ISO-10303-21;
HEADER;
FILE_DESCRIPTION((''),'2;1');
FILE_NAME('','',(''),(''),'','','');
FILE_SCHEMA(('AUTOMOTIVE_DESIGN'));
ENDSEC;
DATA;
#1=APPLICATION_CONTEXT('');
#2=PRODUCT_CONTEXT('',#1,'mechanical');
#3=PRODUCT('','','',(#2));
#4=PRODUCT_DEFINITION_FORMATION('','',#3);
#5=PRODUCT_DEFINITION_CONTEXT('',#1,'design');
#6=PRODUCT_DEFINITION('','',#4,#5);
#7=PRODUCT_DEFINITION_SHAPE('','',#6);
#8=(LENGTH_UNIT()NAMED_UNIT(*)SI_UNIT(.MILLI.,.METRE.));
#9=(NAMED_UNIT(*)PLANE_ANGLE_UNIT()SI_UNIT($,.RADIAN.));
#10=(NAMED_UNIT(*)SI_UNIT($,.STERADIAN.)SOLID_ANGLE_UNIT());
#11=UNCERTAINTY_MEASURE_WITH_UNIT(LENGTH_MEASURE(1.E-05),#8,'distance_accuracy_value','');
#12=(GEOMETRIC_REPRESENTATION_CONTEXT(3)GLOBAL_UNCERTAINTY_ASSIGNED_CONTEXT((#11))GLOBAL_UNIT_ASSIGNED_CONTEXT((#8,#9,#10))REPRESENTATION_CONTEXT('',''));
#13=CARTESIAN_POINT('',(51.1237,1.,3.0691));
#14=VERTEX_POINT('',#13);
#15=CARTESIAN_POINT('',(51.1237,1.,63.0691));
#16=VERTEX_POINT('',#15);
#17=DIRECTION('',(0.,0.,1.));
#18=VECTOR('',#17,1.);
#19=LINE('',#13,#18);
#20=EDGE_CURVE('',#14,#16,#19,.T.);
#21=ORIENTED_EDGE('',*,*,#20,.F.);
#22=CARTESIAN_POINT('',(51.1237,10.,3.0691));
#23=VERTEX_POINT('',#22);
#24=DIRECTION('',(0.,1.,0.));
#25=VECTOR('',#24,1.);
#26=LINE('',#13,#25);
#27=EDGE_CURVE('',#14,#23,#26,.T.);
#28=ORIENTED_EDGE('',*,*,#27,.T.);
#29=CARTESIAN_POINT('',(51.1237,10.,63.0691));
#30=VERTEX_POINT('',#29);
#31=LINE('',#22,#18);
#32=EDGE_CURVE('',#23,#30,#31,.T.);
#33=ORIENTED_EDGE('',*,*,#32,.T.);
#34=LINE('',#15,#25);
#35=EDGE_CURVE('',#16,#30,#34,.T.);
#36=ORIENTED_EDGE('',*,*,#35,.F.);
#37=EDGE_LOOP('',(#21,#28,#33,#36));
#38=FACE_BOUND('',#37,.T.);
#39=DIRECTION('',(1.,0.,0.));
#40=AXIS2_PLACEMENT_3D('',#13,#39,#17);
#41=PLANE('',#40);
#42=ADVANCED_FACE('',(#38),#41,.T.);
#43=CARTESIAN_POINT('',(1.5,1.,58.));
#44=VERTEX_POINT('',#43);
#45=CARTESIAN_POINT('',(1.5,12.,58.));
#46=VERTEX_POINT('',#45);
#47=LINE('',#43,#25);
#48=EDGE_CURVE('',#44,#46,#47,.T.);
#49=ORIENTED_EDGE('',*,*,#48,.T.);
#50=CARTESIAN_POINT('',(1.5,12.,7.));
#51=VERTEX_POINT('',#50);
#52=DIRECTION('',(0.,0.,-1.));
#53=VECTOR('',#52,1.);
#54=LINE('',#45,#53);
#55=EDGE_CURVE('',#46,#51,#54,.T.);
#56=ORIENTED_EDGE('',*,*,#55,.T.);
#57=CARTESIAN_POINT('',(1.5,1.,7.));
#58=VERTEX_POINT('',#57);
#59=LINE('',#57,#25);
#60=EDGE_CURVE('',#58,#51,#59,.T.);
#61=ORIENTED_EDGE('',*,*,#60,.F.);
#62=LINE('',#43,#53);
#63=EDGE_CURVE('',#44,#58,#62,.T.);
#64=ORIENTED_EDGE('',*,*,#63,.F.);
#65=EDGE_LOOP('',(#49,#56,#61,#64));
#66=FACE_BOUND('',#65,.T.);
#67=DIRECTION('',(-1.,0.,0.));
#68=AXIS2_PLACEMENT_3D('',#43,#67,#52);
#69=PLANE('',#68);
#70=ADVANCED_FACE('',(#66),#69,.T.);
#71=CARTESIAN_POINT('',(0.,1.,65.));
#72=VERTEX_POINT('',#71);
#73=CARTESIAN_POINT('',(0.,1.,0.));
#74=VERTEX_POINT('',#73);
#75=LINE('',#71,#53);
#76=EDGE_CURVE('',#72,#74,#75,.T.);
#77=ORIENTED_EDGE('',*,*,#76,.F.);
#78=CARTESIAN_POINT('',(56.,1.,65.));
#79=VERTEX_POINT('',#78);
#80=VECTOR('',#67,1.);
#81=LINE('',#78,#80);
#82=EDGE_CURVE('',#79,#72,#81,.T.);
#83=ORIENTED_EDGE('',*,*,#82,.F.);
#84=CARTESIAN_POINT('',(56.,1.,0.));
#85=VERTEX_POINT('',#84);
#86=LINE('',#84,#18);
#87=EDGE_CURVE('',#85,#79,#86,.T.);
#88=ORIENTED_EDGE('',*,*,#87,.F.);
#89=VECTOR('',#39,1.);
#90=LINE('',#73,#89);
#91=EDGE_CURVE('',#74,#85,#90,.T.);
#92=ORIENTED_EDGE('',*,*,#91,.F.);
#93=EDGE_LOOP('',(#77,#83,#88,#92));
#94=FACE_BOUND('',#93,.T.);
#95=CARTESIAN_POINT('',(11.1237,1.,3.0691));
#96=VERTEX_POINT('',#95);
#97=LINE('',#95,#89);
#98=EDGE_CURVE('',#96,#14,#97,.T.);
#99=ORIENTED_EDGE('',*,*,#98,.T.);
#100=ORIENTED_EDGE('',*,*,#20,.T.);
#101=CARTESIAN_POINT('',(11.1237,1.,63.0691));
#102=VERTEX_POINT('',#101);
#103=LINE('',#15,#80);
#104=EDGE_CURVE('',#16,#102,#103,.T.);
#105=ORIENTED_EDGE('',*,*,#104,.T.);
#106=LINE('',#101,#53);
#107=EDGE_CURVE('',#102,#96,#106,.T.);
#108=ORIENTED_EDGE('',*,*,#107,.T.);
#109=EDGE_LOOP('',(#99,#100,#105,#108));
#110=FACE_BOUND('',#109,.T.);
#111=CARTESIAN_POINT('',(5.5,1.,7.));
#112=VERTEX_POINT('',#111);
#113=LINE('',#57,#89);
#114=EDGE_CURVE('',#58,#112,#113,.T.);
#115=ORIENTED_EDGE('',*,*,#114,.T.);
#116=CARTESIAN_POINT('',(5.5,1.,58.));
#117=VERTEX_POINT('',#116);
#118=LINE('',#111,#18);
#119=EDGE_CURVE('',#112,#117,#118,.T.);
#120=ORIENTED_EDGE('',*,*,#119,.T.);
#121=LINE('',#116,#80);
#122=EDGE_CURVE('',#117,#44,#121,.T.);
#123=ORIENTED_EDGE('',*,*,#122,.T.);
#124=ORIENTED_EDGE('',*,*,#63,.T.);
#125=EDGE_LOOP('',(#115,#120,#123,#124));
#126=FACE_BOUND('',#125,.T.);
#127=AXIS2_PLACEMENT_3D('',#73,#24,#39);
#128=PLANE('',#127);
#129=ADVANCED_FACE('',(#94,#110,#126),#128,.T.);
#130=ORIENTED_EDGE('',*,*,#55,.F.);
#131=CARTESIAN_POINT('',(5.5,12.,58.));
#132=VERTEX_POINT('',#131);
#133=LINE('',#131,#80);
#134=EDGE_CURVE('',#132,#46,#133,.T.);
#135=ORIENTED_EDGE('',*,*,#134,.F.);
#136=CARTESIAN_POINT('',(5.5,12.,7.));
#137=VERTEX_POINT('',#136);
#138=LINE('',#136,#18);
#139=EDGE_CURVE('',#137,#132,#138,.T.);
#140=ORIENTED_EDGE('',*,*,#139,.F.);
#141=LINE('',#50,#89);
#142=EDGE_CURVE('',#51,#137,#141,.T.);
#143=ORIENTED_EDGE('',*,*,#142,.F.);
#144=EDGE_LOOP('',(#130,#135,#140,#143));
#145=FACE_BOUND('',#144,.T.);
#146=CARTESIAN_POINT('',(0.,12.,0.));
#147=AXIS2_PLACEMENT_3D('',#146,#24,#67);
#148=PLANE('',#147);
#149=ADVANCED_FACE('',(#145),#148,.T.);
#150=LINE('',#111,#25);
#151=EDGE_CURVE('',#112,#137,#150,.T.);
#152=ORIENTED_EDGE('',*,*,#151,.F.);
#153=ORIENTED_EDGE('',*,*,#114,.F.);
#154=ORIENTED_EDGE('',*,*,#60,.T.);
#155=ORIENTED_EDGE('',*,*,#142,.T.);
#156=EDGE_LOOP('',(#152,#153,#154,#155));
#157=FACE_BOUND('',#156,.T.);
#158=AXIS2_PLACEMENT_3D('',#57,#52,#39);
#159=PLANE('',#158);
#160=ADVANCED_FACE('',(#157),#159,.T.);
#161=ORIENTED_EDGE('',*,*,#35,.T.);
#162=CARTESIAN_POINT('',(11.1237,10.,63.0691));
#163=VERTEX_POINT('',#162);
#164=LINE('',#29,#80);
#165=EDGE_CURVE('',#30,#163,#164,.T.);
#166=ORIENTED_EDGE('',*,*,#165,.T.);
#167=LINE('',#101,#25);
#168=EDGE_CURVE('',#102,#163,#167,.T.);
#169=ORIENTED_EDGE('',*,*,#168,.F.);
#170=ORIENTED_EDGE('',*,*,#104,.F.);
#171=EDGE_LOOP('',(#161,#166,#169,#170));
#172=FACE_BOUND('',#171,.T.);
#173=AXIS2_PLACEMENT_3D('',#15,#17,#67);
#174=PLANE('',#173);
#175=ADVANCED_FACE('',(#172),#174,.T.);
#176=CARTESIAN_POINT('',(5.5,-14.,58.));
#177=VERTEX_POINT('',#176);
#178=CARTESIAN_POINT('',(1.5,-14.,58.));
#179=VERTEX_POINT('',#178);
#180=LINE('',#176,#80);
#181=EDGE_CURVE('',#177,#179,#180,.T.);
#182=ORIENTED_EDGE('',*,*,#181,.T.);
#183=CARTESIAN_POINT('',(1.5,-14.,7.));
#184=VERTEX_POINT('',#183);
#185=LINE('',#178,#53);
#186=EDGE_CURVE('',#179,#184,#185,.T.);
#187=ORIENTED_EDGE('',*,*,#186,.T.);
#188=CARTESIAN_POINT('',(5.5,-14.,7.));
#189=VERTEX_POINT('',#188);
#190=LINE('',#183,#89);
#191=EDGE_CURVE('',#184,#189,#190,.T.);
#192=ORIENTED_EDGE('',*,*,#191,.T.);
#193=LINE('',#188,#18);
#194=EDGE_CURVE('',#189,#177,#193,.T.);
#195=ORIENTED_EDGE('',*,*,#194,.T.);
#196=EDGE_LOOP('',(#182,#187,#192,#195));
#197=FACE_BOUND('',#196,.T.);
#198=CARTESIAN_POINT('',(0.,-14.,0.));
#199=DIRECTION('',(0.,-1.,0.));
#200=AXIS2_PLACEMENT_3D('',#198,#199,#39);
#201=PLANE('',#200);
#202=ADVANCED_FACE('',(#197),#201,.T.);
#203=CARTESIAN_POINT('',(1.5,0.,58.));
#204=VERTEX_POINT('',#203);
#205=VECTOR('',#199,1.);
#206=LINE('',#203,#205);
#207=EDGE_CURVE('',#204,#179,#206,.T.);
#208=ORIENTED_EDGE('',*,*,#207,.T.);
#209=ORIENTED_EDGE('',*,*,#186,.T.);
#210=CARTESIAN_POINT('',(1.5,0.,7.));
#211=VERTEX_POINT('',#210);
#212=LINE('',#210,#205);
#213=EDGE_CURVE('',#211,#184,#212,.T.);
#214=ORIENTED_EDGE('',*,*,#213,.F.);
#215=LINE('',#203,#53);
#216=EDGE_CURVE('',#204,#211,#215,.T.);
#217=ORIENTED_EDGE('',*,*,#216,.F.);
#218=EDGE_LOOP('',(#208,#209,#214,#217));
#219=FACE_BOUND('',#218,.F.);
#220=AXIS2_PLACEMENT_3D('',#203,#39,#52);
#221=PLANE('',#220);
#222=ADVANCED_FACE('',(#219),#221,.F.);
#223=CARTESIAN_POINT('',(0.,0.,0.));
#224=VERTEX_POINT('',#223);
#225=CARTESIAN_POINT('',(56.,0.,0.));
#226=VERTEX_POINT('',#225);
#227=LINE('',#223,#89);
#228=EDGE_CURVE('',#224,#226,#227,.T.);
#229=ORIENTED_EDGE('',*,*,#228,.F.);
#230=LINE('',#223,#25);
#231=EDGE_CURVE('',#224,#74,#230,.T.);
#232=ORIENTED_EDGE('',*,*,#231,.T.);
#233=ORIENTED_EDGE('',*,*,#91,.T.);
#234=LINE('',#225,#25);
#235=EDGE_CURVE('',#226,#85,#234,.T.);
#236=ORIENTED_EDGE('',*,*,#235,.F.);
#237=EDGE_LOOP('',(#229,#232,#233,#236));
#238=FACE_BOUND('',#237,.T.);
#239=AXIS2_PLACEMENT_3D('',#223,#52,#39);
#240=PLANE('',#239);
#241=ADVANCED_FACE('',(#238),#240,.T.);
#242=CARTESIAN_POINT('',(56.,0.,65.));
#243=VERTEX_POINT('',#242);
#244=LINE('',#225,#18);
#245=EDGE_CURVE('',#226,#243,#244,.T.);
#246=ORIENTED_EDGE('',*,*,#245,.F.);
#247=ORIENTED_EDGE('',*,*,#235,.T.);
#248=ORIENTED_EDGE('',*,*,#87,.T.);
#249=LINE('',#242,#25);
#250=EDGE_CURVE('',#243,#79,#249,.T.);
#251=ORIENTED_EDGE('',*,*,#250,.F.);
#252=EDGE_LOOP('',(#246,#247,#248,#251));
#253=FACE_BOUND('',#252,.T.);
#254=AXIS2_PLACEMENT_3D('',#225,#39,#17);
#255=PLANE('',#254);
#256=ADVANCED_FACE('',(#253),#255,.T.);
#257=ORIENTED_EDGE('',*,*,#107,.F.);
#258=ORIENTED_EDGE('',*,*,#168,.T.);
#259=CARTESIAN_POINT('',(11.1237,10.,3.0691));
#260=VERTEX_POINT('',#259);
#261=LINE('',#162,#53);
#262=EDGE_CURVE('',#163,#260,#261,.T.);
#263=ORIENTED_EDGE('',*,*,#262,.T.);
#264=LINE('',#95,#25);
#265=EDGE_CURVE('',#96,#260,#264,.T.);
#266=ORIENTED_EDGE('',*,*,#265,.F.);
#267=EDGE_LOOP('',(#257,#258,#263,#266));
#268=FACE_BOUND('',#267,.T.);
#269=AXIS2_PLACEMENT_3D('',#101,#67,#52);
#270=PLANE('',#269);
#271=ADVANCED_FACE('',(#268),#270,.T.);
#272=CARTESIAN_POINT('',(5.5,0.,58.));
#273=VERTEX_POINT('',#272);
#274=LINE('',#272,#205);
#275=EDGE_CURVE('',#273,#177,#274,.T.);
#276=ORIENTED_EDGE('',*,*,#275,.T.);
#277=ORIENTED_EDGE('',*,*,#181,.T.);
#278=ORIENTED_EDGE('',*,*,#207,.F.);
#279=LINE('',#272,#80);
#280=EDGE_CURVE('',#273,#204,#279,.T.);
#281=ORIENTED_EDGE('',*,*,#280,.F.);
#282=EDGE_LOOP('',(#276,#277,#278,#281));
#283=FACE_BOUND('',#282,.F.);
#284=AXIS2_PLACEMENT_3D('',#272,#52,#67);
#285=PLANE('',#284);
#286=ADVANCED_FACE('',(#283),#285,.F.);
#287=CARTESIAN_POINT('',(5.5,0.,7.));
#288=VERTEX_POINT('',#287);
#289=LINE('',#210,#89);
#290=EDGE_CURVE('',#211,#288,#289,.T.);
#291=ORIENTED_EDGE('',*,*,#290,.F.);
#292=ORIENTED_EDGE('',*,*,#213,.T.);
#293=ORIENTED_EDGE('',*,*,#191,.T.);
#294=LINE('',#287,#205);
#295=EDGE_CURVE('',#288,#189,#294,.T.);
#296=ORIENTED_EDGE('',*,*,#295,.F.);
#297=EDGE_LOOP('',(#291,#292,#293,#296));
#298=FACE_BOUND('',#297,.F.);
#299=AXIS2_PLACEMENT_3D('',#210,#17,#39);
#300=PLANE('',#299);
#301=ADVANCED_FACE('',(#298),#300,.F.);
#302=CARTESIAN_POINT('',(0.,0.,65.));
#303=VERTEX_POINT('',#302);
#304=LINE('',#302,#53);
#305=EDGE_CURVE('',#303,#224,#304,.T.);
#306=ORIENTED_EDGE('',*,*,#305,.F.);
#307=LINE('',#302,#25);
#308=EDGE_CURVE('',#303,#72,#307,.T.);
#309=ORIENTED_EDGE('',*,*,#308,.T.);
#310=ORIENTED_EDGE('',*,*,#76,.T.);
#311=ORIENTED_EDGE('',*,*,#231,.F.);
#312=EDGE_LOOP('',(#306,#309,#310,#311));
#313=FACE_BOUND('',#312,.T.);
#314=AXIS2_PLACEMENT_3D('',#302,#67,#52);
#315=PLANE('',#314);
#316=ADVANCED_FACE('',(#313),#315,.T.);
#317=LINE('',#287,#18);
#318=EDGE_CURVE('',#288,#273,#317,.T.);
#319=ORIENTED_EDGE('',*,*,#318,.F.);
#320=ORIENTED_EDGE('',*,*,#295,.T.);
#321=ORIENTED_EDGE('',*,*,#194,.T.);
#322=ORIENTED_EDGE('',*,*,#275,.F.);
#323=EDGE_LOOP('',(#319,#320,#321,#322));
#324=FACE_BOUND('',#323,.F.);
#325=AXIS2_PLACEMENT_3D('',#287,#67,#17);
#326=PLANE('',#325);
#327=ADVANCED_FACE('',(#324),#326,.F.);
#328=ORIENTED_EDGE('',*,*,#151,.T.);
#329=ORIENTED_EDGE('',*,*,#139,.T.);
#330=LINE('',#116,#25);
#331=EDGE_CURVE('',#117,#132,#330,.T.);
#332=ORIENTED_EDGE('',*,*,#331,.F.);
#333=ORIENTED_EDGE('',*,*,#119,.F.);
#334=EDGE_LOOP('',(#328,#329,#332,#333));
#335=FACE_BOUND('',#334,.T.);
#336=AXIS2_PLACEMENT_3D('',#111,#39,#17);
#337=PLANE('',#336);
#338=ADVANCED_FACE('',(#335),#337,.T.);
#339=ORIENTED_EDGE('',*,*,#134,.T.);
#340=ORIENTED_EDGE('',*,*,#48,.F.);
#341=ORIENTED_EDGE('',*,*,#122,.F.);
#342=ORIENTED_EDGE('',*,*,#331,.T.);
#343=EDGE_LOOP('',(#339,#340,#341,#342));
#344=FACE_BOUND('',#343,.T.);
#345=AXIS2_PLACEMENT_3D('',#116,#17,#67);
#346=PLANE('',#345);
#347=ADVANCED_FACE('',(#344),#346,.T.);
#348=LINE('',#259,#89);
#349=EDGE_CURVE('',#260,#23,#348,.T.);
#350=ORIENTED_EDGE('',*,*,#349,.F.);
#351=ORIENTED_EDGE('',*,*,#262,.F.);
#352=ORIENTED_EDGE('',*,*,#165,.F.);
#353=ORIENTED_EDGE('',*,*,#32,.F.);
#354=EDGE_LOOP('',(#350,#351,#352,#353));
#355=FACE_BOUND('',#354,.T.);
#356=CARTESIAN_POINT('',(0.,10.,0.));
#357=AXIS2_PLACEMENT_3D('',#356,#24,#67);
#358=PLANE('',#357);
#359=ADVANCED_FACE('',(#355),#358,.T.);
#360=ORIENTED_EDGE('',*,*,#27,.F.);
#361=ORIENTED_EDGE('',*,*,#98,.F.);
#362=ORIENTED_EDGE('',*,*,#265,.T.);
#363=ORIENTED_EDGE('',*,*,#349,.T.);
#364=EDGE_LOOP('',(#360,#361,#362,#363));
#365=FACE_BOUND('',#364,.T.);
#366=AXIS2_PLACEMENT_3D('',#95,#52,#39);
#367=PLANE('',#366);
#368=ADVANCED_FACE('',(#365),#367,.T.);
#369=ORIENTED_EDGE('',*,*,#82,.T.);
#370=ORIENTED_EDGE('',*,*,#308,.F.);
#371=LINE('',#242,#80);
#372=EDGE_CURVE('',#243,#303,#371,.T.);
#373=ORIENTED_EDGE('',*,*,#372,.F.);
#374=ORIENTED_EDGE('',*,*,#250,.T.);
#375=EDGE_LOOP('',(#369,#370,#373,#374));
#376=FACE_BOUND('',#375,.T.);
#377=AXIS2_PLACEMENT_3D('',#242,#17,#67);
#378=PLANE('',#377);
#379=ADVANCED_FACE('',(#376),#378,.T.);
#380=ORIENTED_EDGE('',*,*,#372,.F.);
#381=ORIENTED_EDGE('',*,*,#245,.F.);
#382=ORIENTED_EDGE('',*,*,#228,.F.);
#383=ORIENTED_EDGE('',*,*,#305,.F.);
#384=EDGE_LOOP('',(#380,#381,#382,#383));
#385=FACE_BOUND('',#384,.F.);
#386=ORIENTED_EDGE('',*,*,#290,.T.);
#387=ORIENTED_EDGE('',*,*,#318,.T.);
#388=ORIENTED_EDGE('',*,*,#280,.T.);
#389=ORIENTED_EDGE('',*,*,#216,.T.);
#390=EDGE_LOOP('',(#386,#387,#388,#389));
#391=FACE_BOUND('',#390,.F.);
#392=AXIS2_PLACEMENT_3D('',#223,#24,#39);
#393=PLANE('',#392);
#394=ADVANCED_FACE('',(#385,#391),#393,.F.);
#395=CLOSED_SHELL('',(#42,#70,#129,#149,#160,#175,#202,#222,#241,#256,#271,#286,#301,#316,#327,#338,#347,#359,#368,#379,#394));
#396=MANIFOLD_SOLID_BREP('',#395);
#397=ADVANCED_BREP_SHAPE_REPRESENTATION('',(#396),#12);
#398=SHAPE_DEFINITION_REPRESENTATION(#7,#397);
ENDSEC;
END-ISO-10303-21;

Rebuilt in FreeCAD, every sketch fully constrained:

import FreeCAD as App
import Part
import Sketcher

doc = App.newDocument("Part")
body = doc.addObject("PartDesign::Body", "Body")

sketch1 = body.newObject("Sketcher::SketchObject", "Sketch")
sketch1.AttachmentSupport = (doc.getObject("XZ_Plane"), [""])
sketch1.MapMode = "FlatFace"
sketch1.addGeometry([
    Part.LineSegment(App.Vector(56, 0, 0), App.Vector(0, 0, 0)),
    Part.LineSegment(App.Vector(0, 0, 0), App.Vector(0, 65, 0)),
    Part.LineSegment(App.Vector(0, 65, 0), App.Vector(56, 65, 0)),
    Part.LineSegment(App.Vector(56, 65, 0), App.Vector(56, 0, 0)),
], False)
sketch1.addConstraint([
    Sketcher.Constraint("Coincident", 0, 2, 1, 1),
    Sketcher.Constraint("Coincident", 1, 2, 2, 1),
    Sketcher.Constraint("Coincident", 2, 2, 3, 1),
    Sketcher.Constraint("Coincident", 3, 2, 0, 1),
    Sketcher.Constraint("Horizontal", 0),
    Sketcher.Constraint("Vertical", 1),
    Sketcher.Constraint("Horizontal", 2),
    Sketcher.Constraint("Vertical", 3),
    Sketcher.Constraint("Coincident", 0, 2, -1, 1),
    Sketcher.Constraint("DistanceX", 0, 2, 0, 1, 56.0),
    Sketcher.Constraint("DistanceY", 1, 1, 1, 2, 65.0),
])
pad1 = body.newObject("PartDesign::Pad", "Pad")
pad1.Profile = sketch1
pad1.Length = 1
pad1.Reversed = True

sketch2 = body.newObject("Sketcher::SketchObject", "Sketch001")
sketch2.AttachmentSupport = (doc.getObject("XZ_Plane"), [""])
sketch2.MapMode = "FlatFace"
sketch2.AttachmentOffset = App.Placement(App.Vector(0, 0, -1), App.Rotation())
sketch2.addGeometry([
    Part.LineSegment(App.Vector(5.5, 7, 0), App.Vector(1.5, 7, 0)),
    Part.LineSegment(App.Vector(1.5, 7, 0), App.Vector(1.5, 58, 0)),
    Part.LineSegment(App.Vector(1.5, 58, 0), App.Vector(5.5, 58, 0)),
    Part.LineSegment(App.Vector(5.5, 58, 0), App.Vector(5.5, 7, 0)),
], False)
sketch2.addConstraint([
    Sketcher.Constraint("Coincident", 0, 2, 1, 1),
    Sketcher.Constraint("Coincident", 1, 2, 2, 1),
    Sketcher.Constraint("Coincident", 2, 2, 3, 1),
    Sketcher.Constraint("Coincident", 3, 2, 0, 1),
    Sketcher.Constraint("Horizontal", 0),
    Sketcher.Constraint("Vertical", 1),
    Sketcher.Constraint("Horizontal", 2),
    Sketcher.Constraint("Vertical", 3),
    Sketcher.Constraint("DistanceX", 0, 2, 0, 1, 4.0),
    Sketcher.Constraint("DistanceY", 1, 1, 1, 2, 51.0),
    Sketcher.Constraint("DistanceY", -1, 1, 0, 2, 7.0),
    Sketcher.Constraint("DistanceX", -1, 1, 0, 2, 1.5),
])
pad2 = body.newObject("PartDesign::Pad", "Pad001")
pad2.Profile = sketch2
pad2.Length = 11
pad2.Reversed = True

sketch3 = body.newObject("Sketcher::SketchObject", "Sketch002")
sketch3.AttachmentSupport = (doc.getObject("XZ_Plane"), [""])
sketch3.MapMode = "FlatFace"
sketch3.addGeometry([
    Part.LineSegment(App.Vector(1.5, 58, 0), App.Vector(1.5, 7, 0)),
    Part.LineSegment(App.Vector(1.5, 7, 0), App.Vector(5.5, 7, 0)),
    Part.LineSegment(App.Vector(5.5, 7, 0), App.Vector(5.5, 58, 0)),
    Part.LineSegment(App.Vector(5.5, 58, 0), App.Vector(1.5, 58, 0)),
], False)
sketch3.addConstraint([
    Sketcher.Constraint("Coincident", 0, 2, 1, 1),
    Sketcher.Constraint("Coincident", 1, 2, 2, 1),
    Sketcher.Constraint("Coincident", 2, 2, 3, 1),
    Sketcher.Constraint("Coincident", 3, 2, 0, 1),
    Sketcher.Constraint("Vertical", 0),
    Sketcher.Constraint("Horizontal", 1),
    Sketcher.Constraint("Vertical", 2),
    Sketcher.Constraint("Horizontal", 3),
    Sketcher.Constraint("DistanceX", 1, 1, 1, 2, 4.0),
    Sketcher.Constraint("DistanceY", 0, 2, 0, 1, 51.0),
    Sketcher.Constraint("DistanceY", -1, 1, 0, 2, 7.0),
    Sketcher.Constraint("DistanceX", -1, 1, 0, 2, 1.5),
])
pad3 = body.newObject("PartDesign::Pad", "Pad002")
pad3.Profile = sketch3
pad3.Length = 14

sketch4 = body.newObject("Sketcher::SketchObject", "Sketch003")
sketch4.AttachmentSupport = (doc.getObject("XZ_Plane"), [""])
sketch4.MapMode = "FlatFace"
sketch4.AttachmentOffset = App.Placement(App.Vector(0, 0, -1), App.Rotation())
sketch4.addGeometry([
    Part.LineSegment(App.Vector(51.1237, 3.0691, 0), App.Vector(11.1237, 3.0691, 0)),
    Part.LineSegment(App.Vector(11.1237, 3.0691, 0), App.Vector(11.1237, 63.0691, 0)),
    Part.LineSegment(App.Vector(11.1237, 63.0691, 0), App.Vector(51.1237, 63.0691, 0)),
    Part.LineSegment(App.Vector(51.1237, 63.0691, 0), App.Vector(51.1237, 3.0691, 0)),
], False)
sketch4.addConstraint([
    Sketcher.Constraint("Coincident", 0, 2, 1, 1),
    Sketcher.Constraint("Coincident", 1, 2, 2, 1),
    Sketcher.Constraint("Coincident", 2, 2, 3, 1),
    Sketcher.Constraint("Coincident", 3, 2, 0, 1),
    Sketcher.Constraint("Horizontal", 0),
    Sketcher.Constraint("Vertical", 1),
    Sketcher.Constraint("Horizontal", 2),
    Sketcher.Constraint("Vertical", 3),
    Sketcher.Constraint("DistanceX", 0, 2, 0, 1, 40.0),
    Sketcher.Constraint("DistanceY", 1, 1, 1, 2, 60.0),
    Sketcher.Constraint("DistanceY", -1, 1, 0, 2, 3.069),
    Sketcher.Constraint("DistanceX", -1, 1, 0, 2, 11.1237),
])
pad4 = body.newObject("PartDesign::Pad", "Pad003")
pad4.Profile = sketch4
pad4.Length = 9
pad4.Reversed = True

doc.recompute()
